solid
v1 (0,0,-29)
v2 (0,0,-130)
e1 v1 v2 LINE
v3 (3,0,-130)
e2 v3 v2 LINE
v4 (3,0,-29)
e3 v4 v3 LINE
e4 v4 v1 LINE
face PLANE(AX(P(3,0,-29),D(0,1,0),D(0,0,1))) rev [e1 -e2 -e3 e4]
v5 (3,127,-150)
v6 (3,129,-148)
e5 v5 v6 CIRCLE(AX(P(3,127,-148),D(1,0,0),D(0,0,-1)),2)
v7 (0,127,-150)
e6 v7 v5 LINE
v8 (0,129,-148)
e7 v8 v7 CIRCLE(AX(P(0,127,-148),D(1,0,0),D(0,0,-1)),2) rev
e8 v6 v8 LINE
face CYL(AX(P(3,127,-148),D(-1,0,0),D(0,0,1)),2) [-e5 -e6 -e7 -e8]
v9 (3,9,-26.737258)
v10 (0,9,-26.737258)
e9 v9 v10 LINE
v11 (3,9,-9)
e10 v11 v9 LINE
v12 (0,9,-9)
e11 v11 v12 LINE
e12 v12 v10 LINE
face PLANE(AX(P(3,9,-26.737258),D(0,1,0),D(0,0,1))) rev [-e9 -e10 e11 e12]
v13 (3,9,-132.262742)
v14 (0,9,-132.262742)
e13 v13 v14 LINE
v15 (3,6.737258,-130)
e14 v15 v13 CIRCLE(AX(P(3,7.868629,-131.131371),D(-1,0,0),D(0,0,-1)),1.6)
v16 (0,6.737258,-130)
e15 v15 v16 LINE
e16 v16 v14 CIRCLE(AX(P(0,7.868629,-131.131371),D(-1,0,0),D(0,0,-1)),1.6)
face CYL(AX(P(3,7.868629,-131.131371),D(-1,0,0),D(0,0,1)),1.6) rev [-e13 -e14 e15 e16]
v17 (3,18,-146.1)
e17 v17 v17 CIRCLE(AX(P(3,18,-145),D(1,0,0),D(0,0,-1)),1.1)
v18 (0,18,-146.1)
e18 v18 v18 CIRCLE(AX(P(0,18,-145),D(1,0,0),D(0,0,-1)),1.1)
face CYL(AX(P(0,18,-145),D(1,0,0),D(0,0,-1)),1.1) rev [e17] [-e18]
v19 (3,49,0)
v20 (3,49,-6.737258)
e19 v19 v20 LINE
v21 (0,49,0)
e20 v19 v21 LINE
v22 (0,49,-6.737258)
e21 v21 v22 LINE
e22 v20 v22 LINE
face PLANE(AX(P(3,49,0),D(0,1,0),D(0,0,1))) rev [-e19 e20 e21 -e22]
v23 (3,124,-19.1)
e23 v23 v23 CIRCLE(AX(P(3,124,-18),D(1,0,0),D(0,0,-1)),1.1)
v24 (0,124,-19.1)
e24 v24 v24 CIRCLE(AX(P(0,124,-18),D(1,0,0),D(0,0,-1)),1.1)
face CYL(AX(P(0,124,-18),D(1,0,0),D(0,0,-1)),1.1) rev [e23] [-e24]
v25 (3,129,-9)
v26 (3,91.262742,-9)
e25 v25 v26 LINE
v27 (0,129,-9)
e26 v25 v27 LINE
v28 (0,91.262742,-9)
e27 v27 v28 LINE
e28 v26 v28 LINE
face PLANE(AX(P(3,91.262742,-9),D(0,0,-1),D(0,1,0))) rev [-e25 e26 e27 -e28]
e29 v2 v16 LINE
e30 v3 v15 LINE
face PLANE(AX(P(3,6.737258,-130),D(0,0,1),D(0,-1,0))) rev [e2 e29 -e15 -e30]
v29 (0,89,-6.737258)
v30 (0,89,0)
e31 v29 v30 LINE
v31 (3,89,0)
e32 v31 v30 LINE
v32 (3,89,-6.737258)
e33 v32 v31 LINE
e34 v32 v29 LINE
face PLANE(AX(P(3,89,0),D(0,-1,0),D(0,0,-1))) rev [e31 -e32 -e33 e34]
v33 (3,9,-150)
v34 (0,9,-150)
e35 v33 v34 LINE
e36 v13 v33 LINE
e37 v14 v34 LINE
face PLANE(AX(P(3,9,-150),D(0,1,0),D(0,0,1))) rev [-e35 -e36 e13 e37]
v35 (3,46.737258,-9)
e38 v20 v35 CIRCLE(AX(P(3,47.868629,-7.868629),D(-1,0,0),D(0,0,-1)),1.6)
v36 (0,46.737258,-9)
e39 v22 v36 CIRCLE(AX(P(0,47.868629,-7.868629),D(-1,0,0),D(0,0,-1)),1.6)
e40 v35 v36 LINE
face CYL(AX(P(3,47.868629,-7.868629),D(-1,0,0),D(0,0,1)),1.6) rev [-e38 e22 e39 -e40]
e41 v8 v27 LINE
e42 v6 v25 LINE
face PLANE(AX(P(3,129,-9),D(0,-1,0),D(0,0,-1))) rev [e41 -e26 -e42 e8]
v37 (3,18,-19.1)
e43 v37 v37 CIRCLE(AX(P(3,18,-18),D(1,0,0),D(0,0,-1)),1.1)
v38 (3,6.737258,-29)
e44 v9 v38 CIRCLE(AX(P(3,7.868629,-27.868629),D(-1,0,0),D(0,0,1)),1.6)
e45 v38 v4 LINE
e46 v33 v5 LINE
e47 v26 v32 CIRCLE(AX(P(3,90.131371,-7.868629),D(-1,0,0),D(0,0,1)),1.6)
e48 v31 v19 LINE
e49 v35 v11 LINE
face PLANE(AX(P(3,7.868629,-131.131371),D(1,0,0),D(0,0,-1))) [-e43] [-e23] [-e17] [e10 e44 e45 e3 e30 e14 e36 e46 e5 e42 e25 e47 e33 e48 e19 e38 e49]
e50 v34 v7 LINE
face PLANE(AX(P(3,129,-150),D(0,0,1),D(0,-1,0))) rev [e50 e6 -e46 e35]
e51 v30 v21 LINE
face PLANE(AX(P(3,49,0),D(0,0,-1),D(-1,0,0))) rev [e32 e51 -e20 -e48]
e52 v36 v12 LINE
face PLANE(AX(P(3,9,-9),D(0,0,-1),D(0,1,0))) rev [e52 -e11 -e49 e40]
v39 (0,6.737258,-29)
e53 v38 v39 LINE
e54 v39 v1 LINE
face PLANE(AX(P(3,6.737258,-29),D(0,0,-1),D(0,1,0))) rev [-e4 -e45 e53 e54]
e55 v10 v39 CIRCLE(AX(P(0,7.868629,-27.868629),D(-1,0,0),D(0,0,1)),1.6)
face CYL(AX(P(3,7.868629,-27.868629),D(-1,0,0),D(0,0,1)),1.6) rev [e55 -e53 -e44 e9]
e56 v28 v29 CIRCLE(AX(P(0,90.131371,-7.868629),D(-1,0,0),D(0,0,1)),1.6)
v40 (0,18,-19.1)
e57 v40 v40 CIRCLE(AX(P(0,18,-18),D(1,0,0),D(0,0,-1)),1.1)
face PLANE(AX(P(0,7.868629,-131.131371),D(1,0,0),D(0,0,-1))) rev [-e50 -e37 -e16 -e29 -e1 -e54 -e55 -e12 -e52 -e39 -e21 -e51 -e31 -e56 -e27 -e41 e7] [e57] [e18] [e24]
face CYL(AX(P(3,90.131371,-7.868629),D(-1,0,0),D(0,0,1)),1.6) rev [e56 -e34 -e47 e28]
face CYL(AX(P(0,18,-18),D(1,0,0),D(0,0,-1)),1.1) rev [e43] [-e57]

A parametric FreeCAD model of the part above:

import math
import FreeCAD as App
import Part
import Sketcher


def edges_at(feature, points):
    """Names of the edges that pass closest to the given points."""
    edges = feature.Shape.Edges
    near = lambda p: min(range(len(edges)), key=lambda i: edges[i].distToShape(Part.Vertex(*p))[0])
    return sorted({f"Edge{near(p) + 1}" for p in points})

doc = App.newDocument("Part")
body = doc.addObject("PartDesign::Body", "Body")

sketch1 = body.newObject("Sketcher::SketchObject", "Sketch")
sketch1.AttachmentSupport = (doc.getObject("YZ_Plane"), [""])
sketch1.MapMode = "FlatFace"
sketch1.addGeometry(Part.LineSegment(App.Vector(0, -130, 0), App.Vector(6.737258, -130, 0)), False)
sketch1.addGeometry(Part.ArcOfCircle(Part.Circle(App.Vector(7.868629, -131.131371, 0), App.Vector(0, 0, 1), 1.6), math.radians(-45), math.radians(135)), False)
sketch1.addGeometry(Part.LineSegment(App.Vector(9, -132.262742, 0), App.Vector(9, -150, 0)), False)
sketch1.addGeometry(Part.LineSegment(App.Vector(9, -150, 0), App.Vector(129, -150, 0)), False)
sketch1.addGeometry(Part.LineSegment(App.Vector(129, -150, 0), App.Vector(129, -9, 0)), False)
sketch1.addGeometry(Part.LineSegment(App.Vector(129, -9, 0), App.Vector(91.262742, -9, 0)), False)
sketch1.addGeometry(Part.ArcOfCircle(Part.Circle(App.Vector(90.131371, -7.868629, 0), App.Vector(0, 0, 1), 1.6), math.radians(135), math.radians(315)), False)
sketch1.addGeometry(Part.LineSegment(App.Vector(89, -6.737258, 0), App.Vector(89, 0, 0)), False)
sketch1.addGeometry(Part.LineSegment(App.Vector(89, 0, 0), App.Vector(49, 0, 0)), False)
sketch1.addGeometry(Part.LineSegment(App.Vector(49, 0, 0), App.Vector(49, -6.737258, 0)), False)
sketch1.addGeometry(Part.ArcOfCircle(Part.Circle(App.Vector(47.868629, -7.868629, 0), App.Vector(0, 0, 1), 1.6), math.radians(-135), math.radians(45)), False)
sketch1.addGeometry(Part.LineSegment(App.Vector(46.737258, -9, 0), App.Vector(9, -9, 0)), False)
sketch1.addGeometry(Part.LineSegment(App.Vector(9, -9, 0), App.Vector(9, -26.737258, 0)), False)
sketch1.addGeometry(Part.ArcOfCircle(Part.Circle(App.Vector(7.868629, -27.868629, 0), App.Vector(0, 0, 1), 1.6), math.radians(-135), math.radians(45)), False)
sketch1.addGeometry(Part.LineSegment(App.Vector(6.737258, -29, 0), App.Vector(0, -29, 0)), False)
sketch1.addGeometry(Part.LineSegment(App.Vector(0, -29, 0), App.Vector(0, -130, 0)), False)
sketch1.addConstraint(Sketcher.Constraint("Coincident", 0, 2, 1, 2))
sketch1.addConstraint(Sketcher.Constraint("Coincident", 1, 1, 2, 1))
sketch1.addConstraint(Sketcher.Constraint("Coincident", 2, 2, 3, 1))
sketch1.addConstraint(Sketcher.Constraint("Coincident", 3, 2, 4, 1))
sketch1.addConstraint(Sketcher.Constraint("Coincident", 4, 2, 5, 1))
sketch1.addConstraint(Sketcher.Constraint("Coincident", 5, 2, 6, 2))
sketch1.addConstraint(Sketcher.Constraint("Coincident", 6, 1, 7, 1))
sketch1.addConstraint(Sketcher.Constraint("Coincident", 7, 2, 8, 1))
sketch1.addConstraint(Sketcher.Constraint("Coincident", 8, 2, 9, 1))
sketch1.addConstraint(Sketcher.Constraint("Coincident", 9, 2, 10, 2))
sketch1.addConstraint(Sketcher.Constraint("Coincident", 10, 1, 11, 1))
sketch1.addConstraint(Sketcher.Constraint("Coincident", 11, 2, 12, 1))
sketch1.addConstraint(Sketcher.Constraint("Coincident", 12, 2, 13, 2))
sketch1.addConstraint(Sketcher.Constraint("Coincident", 13, 1, 14, 1))
sketch1.addConstraint(Sketcher.Constraint("Coincident", 14, 2, 15, 1))
sketch1.addConstraint(Sketcher.Constraint("Coincident", 15, 2, 0, 1))
sketch1.addConstraint(Sketcher.Constraint("Horizontal", 0))
sketch1.addConstraint(Sketcher.Constraint("Vertical", 2))
sketch1.addConstraint(Sketcher.Constraint("Horizontal", 3))
sketch1.addConstraint(Sketcher.Constraint("Vertical", 4))
sketch1.addConstraint(Sketcher.Constraint("Horizontal", 5))
sketch1.addConstraint(Sketcher.Constraint("Vertical", 7))
sketch1.addConstraint(Sketcher.Constraint("Horizontal", 8))
sketch1.addConstraint(Sketcher.Constraint("Vertical", 9))
sketch1.addConstraint(Sketcher.Constraint("Horizontal", 11))
sketch1.addConstraint(Sketcher.Constraint("Vertical", 12))
sketch1.addConstraint(Sketcher.Constraint("Horizontal", 14))
sketch1.addConstraint(Sketcher.Constraint("Vertical", 15))
sketch1.addConstraint(Sketcher.Constraint("Equal", 1, 6))
sketch1.addConstraint(Sketcher.Constraint("Equal", 6, 10))
sketch1.addConstraint(Sketcher.Constraint("Equal", 10, 13))
sketch1.addConstraint(Sketcher.Constraint("PointOnObject", 7, 2, -1))
sketch1.addConstraint(Sketcher.Constraint("PointOnObject", 14, 2, -2))
sketch1.addConstraint(Sketcher.Constraint("Horizontal", 6, 3, 10, 3))
sketch1.addConstraint(Sketcher.Constraint("Horizontal", 6, 1, 9, 2))
sketch1.addConstraint(Sketcher.Constraint("Horizontal", 5, 2, 10, 1))
sketch1.addConstraint(Sketcher.Constraint("Vertical", 1, 3, 13, 3))
sketch1.addConstraint(Sketcher.Constraint("Vertical", 2, 2, 11, 2))
sketch1.addConstraint(Sketcher.Constraint("Vertical", 0, 2, 13, 1))
sketch1.addConstraint(Sketcher.Constraint("Equal", 5, 11))
sketch1.addConstraint(Sketcher.Constraint("Equal", 14, 7))
sketch1.addConstraint(Sketcher.Constraint("Equal", 2, 12))
sketch1.addConstraint(Sketcher.Constraint("Radius", 1, 1.6))
sketch1.addConstraint(Sketcher.Constraint("DistanceX", 3, 1, 3, 2, 120.0))
sketch1.addConstraint(Sketcher.Constraint("DistanceX", 8, 2, 8, 1, 40.0))
sketch1.addConstraint(Sketcher.Constraint("DistanceY", 4, 1, 4, 2, 141.0))
sketch1.addConstraint(Sketcher.Constraint("DistanceY", 15, 2, 15, 1, 101.0))
sketch1.addConstraint(Sketcher.Constraint("DistanceY", 0, 2, -1, 1, 130.0))
sketch1.addConstraint(Sketcher.Constraint("DistanceX", -1, 1, 1, 1, 9.0))
sketch1.addConstraint(Sketcher.Constraint("DistanceX", 1, 3, 10, 3, 40.0))
sketch1.addConstraint(Sketcher.Constraint("DistanceY", 13, 3, 10, 3, 20.0))
sketch1.addConstraint(Sketcher.Constraint("DistanceX", -1, 1, 1, 3, 7.868629))
pad1 = body.newObject("PartDesign::Pad", "Pad")
pad1.Profile = sketch1
pad1.Length = 3

sketch2 = body.newObject("Sketcher::SketchObject", "Sketch001")
sketch2.AttachmentSupport = (doc.getObject("YZ_Plane"), [""])
sketch2.MapMode = "FlatFace"
sketch2.AttachmentOffset = App.Placement(App.Vector(0, 0, 3), App.Rotation())
sketch2.addGeometry(Part.Circle(App.Vector(124, -18, 0), App.Vector(0, 0, 1), 1.1), False)
sketch2.addGeometry(Part.Circle(App.Vector(18, -18, 0), App.Vector(0, 0, 1), 1.1), False)
sketch2.addGeometry(Part.Circle(App.Vector(18, -145, 0), App.Vector(0, 0, 1), 1.1), False)
sketch2.addConstraint(Sketcher.Constraint("Equal", 0, 1))
sketch2.addConstraint(Sketcher.Constraint("Equal", 1, 2))
sketch2.addConstraint(Sketcher.Constraint("Horizontal", 0, 3, 1, 3))
sketch2.addConstraint(Sketcher.Constraint("Vertical", 1, 3, 2, 3))
sketch2.addConstraint(Sketcher.Constraint("Diameter", 0, 2.2))
sketch2.addConstraint(Sketcher.Constraint("DistanceX", -1, 1, 0, 3, 124.0))
sketch2.addConstraint(Sketcher.Constraint("DistanceY", 0, 3, -1, 1, 18.0))
sketch2.addConstraint(Sketcher.Constraint("DistanceX", -1, 1, 1, 3, 18.0))
sketch2.addConstraint(Sketcher.Constraint("DistanceY", 2, 3, -1, 1, 145.0))
pocket1 = body.newObject("PartDesign::Pocket", "Pocket")
pocket1.Profile = sketch2
pocket1.Type = "ThroughAll"
doc.recompute()

fillet = body.newObject("PartDesign::Fillet", "Fillet")
fillet.Base = (pocket1, edges_at(pocket1, [(1.5, 129, -150)]))
fillet.Radius = 2

doc.recompute()
